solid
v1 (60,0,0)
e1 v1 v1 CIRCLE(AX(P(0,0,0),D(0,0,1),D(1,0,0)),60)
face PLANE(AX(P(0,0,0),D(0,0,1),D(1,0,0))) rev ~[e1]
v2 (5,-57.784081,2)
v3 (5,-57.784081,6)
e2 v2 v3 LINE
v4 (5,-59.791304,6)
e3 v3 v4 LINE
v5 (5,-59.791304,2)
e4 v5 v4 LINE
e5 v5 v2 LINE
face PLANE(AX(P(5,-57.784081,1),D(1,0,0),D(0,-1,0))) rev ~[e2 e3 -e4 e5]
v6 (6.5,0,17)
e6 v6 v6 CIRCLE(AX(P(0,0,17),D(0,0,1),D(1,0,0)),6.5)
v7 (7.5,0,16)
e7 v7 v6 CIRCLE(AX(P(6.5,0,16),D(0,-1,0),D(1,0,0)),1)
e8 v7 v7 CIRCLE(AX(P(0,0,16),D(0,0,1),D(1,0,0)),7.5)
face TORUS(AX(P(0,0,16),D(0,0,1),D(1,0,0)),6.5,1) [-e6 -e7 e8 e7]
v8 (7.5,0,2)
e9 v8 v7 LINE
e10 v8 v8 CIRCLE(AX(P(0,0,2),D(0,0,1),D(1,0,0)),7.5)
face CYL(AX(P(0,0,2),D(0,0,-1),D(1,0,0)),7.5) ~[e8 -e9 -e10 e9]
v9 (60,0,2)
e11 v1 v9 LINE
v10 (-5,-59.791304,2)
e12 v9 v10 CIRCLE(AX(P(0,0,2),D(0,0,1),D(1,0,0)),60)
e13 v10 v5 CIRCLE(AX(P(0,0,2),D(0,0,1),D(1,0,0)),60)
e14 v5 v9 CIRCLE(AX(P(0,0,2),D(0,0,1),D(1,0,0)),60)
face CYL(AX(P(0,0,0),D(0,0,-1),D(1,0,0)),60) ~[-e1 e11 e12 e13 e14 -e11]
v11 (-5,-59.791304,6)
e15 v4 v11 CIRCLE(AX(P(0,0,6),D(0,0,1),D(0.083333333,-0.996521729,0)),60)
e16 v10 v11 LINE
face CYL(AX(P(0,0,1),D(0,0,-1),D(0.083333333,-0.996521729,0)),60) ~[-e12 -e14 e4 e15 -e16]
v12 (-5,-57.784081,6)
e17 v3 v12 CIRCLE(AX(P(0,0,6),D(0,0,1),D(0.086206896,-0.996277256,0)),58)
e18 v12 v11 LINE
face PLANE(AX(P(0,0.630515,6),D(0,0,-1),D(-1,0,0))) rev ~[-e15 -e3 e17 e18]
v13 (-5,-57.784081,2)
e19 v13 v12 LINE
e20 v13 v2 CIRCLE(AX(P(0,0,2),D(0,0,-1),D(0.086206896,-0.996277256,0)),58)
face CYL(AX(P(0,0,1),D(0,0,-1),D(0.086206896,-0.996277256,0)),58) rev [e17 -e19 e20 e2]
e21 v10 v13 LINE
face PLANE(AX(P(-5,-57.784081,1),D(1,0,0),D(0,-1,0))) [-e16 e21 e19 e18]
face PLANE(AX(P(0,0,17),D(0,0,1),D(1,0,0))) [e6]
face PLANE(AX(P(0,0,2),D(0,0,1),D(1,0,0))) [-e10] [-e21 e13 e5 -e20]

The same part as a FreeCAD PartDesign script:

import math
import FreeCAD as App
import Part
import Sketcher
from FreeCAD import Vector
Q = App.Units.Quantity


def edges_at(feature, points):
    """Names of the edges that pass closest to the given points."""
    edges = feature.Shape.Edges
    near = lambda p: min(range(len(edges)), key=lambda i: edges[i].distToShape(Part.Vertex(*p))[0])
    return sorted({f"Edge{near(p) + 1}" for p in points})

doc = App.newDocument("Part")
params = doc.addObject("Spreadsheet::Sheet", "Params")
for row, (alias, value) in enumerate([
    ("sketch1_diameter", "120 mm"),
    ("pad1_length", "2 mm"),
    ("sketch2_radius", "58 mm"),
    ("sketch2_radius2", "60 mm"),
    ("pad2_length", "5 mm"),
    ("sketch3_diameter", "15 mm"),
    ("pad3_length", "15 mm"),
    ("fillet_radius", "1 mm"),
], start=1):
    params.set(f"A{row}", alias)
    params.set(f"B{row}", "=" + value)
    params.setAlias(f"B{row}", alias)

body = doc.addObject("PartDesign::Body", "Body")

sketch1 = body.newObject("Sketcher::SketchObject", "Sketch")
sketch1.AttachmentSupport = (doc.getObject("XY_Plane"), [""])
sketch1.MapMode = "FlatFace"
sketch1.addGeometry(Part.Circle(Vector(0, 0, 0), Vector(0, 0, 1), 60), False)
sketch1.addConstraint(Sketcher.Constraint("Coincident", 0, 3, -1, 1))
sketch1.addConstraint(Sketcher.Constraint("Diameter", 0, Q("120 mm")))
sketch1.setExpression("Constraints[1]", "Params.sketch1_diameter")
pad1 = body.newObject("PartDesign::Pad", "Pad")
pad1.Profile = sketch1
pad1.setExpression("Length", "Params.pad1_length")

sketch2 = body.newObject("Sketcher::SketchObject", "Sketch001")
sketch2.AttachmentSupport = (doc.getObject("XY_Plane"), [""])
sketch2.MapMode = "FlatFace"
sketch2.AttachmentOffset = App.Placement(Vector(0, 0, 1), App.Rotation())
sketch2.addGeometry(Part.ArcOfCircle(Part.Circle(Vector(0, 0, 0), Vector(0, 0, 1), 58), math.radians(-85), math.radians(265)), False)
sketch2.addGeometry(Part.LineSegment(Vector(5, -57.8, 0), Vector(5, -59.8, 0)), False)
sketch2.addGeometry(Part.ArcOfCircle(Part.Circle(Vector(0, 0, 0), Vector(0, 0, 1), 60), math.radians(-85), math.radians(265)), False)
sketch2.addGeometry(Part.LineSegment(Vector(-5, -59.8, 0), Vector(-5, -57.8, 0)), False)
sketch2.addConstraint(Sketcher.Constraint("Coincident", 0, 1, 1, 1))
sketch2.addConstraint(Sketcher.Constraint("Coincident", 1, 2, 2, 1))
sketch2.addConstraint(Sketcher.Constraint("Coincident", 2, 2, 3, 1))
sketch2.addConstraint(Sketcher.Constraint("Coincident", 3, 2, 0, 2))
sketch2.addConstraint(Sketcher.Constraint("Vertical", 1))
sketch2.addConstraint(Sketcher.Constraint("Vertical", 3))
sketch2.addConstraint(Sketcher.Constraint("Coincident", 0, 3, -1, 1))
sketch2.addConstraint(Sketcher.Constraint("Coincident", 2, 3, -1, 1))
sketch2.addConstraint(Sketcher.Constraint("Horizontal", 1, 2, 2, 2))
sketch2.addConstraint(Sketcher.Constraint("Radius", 0, Q("58 mm")))
sketch2.addConstraint(Sketcher.Constraint("Radius", 2, Q("60 mm")))
sketch2.addConstraint(Sketcher.Constraint("DistanceX", -1, 1, 0, 1, Q("5 mm")))
sketch2.setExpression("Constraints[9]", "Params.sketch2_radius")
sketch2.setExpression("Constraints[10]", "Params.sketch2_radius2")
pad2 = body.newObject("PartDesign::Pad", "Pad001")
pad2.Profile = sketch2
pad2.setExpression("Length", "Params.pad2_length")

sketch3 = body.newObject("Sketcher::SketchObject", "Sketch002")
sketch3.AttachmentSupport = (doc.getObject("XY_Plane"), [""])
sketch3.MapMode = "FlatFace"
sketch3.AttachmentOffset = App.Placement(Vector(0, 0, 2), App.Rotation())
sketch3.addGeometry(Part.Circle(Vector(0, 0, 0), Vector(0, 0, 1), 8), False)
sketch3.addConstraint(Sketcher.Constraint("Coincident", 0, 3, -1, 1))
sketch3.addConstraint(Sketcher.Constraint("Diameter", 0, Q("15 mm")))
sketch3.setExpression("Constraints[1]", "Params.sketch3_diameter")
pad3 = body.newObject("PartDesign::Pad", "Pad002")
pad3.Profile = sketch3
pad3.setExpression("Length", "Params.pad3_length")
doc.recompute()

fillet = body.newObject("PartDesign::Fillet", "Fillet")
fillet.Base = (pad3, edges_at(pad3, [(-7.5, 0, 17)]))
fillet.setExpression("Radius", "Params.fillet_radius")

doc.recompute()
